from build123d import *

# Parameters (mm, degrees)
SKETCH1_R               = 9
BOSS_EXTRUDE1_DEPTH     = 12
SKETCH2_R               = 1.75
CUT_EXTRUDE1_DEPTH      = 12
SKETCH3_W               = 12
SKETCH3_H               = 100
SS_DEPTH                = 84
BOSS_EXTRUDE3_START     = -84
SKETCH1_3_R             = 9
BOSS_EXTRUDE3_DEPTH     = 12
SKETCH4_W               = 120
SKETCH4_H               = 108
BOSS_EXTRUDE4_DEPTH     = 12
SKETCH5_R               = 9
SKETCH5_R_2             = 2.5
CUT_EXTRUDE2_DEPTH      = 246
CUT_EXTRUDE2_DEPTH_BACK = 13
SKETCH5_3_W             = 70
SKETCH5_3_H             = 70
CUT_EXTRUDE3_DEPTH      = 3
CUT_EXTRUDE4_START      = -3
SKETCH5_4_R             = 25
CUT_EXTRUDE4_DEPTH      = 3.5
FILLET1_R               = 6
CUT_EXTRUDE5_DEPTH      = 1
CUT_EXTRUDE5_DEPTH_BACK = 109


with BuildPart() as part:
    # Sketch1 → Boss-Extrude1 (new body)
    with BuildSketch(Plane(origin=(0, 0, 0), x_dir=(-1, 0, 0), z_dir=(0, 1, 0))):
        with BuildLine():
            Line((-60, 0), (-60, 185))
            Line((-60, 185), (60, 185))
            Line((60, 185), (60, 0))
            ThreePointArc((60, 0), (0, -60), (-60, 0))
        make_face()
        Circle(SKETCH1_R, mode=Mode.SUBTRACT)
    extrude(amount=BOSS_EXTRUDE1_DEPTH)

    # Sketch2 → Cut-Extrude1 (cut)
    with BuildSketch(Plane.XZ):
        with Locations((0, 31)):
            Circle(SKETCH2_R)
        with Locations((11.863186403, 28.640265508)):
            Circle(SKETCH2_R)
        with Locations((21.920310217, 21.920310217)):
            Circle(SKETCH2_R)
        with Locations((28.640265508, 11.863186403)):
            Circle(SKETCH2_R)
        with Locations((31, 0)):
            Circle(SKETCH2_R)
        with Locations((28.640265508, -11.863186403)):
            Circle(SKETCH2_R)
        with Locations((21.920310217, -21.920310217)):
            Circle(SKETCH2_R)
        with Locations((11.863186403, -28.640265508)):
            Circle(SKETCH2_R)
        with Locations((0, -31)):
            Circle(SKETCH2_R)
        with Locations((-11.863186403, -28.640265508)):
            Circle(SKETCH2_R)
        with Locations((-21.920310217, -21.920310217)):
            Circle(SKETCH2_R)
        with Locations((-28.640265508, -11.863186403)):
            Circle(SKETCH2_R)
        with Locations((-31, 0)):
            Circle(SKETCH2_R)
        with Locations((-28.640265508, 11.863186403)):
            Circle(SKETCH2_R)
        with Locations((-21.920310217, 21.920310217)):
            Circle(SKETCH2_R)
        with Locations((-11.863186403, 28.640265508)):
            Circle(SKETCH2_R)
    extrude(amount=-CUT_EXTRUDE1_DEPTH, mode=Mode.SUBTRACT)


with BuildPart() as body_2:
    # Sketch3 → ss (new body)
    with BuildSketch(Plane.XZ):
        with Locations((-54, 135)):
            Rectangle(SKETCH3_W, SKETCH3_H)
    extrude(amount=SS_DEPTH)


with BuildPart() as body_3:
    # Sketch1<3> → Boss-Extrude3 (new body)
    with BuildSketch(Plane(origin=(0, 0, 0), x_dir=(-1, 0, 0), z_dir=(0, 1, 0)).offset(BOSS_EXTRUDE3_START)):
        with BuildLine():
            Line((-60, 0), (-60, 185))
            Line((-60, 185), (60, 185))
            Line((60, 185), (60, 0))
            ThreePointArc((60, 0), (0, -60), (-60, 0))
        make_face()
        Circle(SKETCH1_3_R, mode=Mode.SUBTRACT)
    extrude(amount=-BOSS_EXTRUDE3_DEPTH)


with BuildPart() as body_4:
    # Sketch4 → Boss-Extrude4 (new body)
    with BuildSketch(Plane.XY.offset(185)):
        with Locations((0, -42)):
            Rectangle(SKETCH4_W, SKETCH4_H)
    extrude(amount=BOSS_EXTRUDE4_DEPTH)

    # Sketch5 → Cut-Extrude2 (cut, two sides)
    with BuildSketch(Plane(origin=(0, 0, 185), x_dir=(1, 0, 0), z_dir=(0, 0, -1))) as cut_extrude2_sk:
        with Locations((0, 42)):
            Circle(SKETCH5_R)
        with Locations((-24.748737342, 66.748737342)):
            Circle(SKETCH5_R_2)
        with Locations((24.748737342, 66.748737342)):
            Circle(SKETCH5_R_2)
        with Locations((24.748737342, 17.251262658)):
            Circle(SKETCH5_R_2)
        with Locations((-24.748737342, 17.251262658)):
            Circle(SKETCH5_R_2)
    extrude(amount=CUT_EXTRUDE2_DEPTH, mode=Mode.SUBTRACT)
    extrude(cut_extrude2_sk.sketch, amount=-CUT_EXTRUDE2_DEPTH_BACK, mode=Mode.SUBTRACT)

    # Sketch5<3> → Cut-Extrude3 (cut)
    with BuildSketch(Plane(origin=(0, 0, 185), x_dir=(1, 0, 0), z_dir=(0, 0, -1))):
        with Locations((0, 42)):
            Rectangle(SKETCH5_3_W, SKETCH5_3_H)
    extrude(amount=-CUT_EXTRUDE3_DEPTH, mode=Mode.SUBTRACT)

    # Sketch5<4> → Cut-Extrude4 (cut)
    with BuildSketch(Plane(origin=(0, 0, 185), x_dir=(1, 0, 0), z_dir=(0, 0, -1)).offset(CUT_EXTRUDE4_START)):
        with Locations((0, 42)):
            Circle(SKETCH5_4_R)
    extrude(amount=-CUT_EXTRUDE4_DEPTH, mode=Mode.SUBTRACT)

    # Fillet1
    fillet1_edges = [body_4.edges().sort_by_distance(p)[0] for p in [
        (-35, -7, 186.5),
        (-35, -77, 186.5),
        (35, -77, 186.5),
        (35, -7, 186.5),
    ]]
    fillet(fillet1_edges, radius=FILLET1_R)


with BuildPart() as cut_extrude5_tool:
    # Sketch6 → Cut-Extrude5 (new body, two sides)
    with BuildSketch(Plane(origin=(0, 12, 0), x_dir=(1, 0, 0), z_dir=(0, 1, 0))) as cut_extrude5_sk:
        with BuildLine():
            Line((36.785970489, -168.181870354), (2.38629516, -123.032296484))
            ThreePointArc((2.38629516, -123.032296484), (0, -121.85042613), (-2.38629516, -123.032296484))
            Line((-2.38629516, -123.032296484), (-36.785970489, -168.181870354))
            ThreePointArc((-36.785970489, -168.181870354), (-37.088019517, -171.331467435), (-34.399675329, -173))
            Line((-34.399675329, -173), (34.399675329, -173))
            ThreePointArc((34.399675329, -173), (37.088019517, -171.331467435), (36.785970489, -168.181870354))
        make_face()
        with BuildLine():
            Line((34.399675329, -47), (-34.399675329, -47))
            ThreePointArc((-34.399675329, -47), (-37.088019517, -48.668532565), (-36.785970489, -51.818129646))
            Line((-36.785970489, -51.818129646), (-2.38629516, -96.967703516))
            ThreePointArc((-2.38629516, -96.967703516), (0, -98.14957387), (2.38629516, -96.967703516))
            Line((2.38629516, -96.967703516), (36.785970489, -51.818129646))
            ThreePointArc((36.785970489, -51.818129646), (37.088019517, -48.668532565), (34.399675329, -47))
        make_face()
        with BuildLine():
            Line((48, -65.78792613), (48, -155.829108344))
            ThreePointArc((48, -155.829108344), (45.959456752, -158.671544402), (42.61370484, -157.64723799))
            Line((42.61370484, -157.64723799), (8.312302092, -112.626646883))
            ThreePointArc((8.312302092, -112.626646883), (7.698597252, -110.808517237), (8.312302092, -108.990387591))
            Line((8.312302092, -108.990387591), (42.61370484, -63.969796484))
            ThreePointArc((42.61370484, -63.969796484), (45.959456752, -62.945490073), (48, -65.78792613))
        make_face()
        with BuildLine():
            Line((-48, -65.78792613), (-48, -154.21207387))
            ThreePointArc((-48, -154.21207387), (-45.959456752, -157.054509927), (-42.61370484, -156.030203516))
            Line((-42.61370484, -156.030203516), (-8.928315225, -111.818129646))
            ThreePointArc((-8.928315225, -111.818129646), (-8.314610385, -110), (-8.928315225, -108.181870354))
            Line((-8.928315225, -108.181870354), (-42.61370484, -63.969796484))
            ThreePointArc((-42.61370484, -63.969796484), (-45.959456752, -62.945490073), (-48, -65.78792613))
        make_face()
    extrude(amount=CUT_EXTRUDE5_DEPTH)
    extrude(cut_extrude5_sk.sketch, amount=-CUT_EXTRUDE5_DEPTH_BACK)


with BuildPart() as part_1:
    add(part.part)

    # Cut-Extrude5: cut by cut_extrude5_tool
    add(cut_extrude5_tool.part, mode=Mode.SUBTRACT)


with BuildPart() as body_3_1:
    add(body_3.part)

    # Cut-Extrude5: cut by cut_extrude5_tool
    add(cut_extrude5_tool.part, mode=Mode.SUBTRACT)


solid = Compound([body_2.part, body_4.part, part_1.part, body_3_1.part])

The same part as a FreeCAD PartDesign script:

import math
import FreeCAD as App
import Part
import Sketcher

V = App.Vector
Q = App.Units.Quantity


def edges_at(feature, points):
    """Names of the edges that pass closest to the given points."""
    edges = feature.Shape.Edges
    near = lambda p: min(range(len(edges)), key=lambda i: edges[i].distToShape(Part.Vertex(*p))[0])
    return sorted({f"Edge{near(p) + 1}" for p in points})


def add_polygon(sketch, points):
    """Adds a closed chain of lines whose ends are joined by coincident constraints."""
    first, n = sketch.GeometryCount, len(points)
    for a, b in zip(points, points[1:] + points[:1]):
        sketch.addGeometry(Part.LineSegment(App.Vector(*a, 0), App.Vector(*b, 0)), False)
    for i in range(n):
        sketch.addConstraint(Sketcher.Constraint("Coincident", first + i, 2, first + (i + 1) % n, 1))

doc = App.newDocument("Part")
body = doc.addObject("PartDesign::Body", "Body")

# Sketch on XZ plane
sketch1 = body.newObject("Sketcher::SketchObject", "Sketch")
sketch1.AttachmentSupport = (doc.getObject("XZ_Plane"), [""])
sketch1.MapMode = "FlatFace"
sketch1.addGeometry([
    Part.LineSegment(V(60, 185, 0), V(60, 0, 0)),  # 0
    Part.ArcOfCircle(Part.Circle(V(0, 0, 0), V(0, 0, 1), 60), math.radians(180), math.radians(360)),  # 1
    Part.LineSegment(V(-60, 0, 0), V(-60, 185, 0)),  # 2
    Part.LineSegment(V(-60, 185, 0), V(60, 185, 0)),  # 3
    Part.Circle(V(0, 0, 0), V(0, 0, 1), 9),  # 4
], False)
sketch1.addConstraint([
    Sketcher.Constraint("Tangent", 0, 2, 1, 2),
    Sketcher.Constraint("Tangent", 1, 1, 2, 1),
    Sketcher.Constraint("Coincident", 2, 2, 3, 1),
    Sketcher.Constraint("Coincident", 3, 2, 0, 1),
    Sketcher.Constraint("Vertical", 0),
    Sketcher.Constraint("Vertical", 2),
    Sketcher.Constraint("Horizontal", 3),
    Sketcher.Constraint("Coincident", 1, 3, -1, 1),
    Sketcher.Constraint("Coincident", 4, 3, -1, 1),
    Sketcher.Constraint("Diameter", 4, Q("18 mm")),
    Sketcher.Constraint("Radius", 1, Q("60 mm")),
    Sketcher.Constraint("DistanceY", 0, 2, 0, 1, Q("185 mm")),
])
pad1 = body.newObject("PartDesign::Pad", "Pad")
pad1.Profile = sketch1
pad1.Length = 12
pad1.Reversed = True

# Sketch on XZ plane
sketch2 = body.newObject("Sketcher::SketchObject", "Sketch001")
sketch2.AttachmentSupport = (doc.getObject("XZ_Plane"), [""])
sketch2.MapMode = "FlatFace"
sketch2.addGeometry([
    Part.Circle(V(0, 31, 0), V(0, 0, 1), 1.8),  # 0
    Part.Circle(V(11.9, 28.6, 0), V(0, 0, 1), 1.8),  # 1
    Part.Circle(V(21.9, 21.9, 0), V(0, 0, 1), 1.8),  # 2
    Part.Circle(V(28.6, 11.9, 0), V(0, 0, 1), 1.8),  # 3
    Part.Circle(V(31, 0, 0), V(0, 0, 1), 1.8),  # 4
    Part.Circle(V(28.6, -11.9, 0), V(0, 0, 1), 1.8),  # 5
    Part.Circle(V(21.9, -21.9, 0), V(0, 0, 1), 1.8),  # 6
    Part.Circle(V(11.9, -28.6, 0), V(0, 0, 1), 1.8),  # 7
    Part.Circle(V(0, -31, 0), V(0, 0, 1), 1.8),  # 8
    Part.Circle(V(-11.9, -28.6, 0), V(0, 0, 1), 1.8),  # 9
    Part.Circle(V(-21.9, -21.9, 0), V(0, 0, 1), 1.8),  # 10
    Part.Circle(V(-28.6, -11.9, 0), V(0, 0, 1), 1.8),  # 11
    Part.Circle(V(-31, 0, 0), V(0, 0, 1), 1.8),  # 12
    Part.Circle(V(-28.6, 11.9, 0), V(0, 0, 1), 1.8),  # 13
    Part.Circle(V(-21.9, 21.9, 0), V(0, 0, 1), 1.8),  # 14
    Part.Circle(V(-11.9, 28.6, 0), V(0, 0, 1), 1.8),  # 15
], False)
sketch2.addConstraint([
    Sketcher.Constraint("Equal", 0, 1),
    Sketcher.Constraint("Equal", 1, 2),
    Sketcher.Constraint("Equal", 2, 3),
    Sketcher.Constraint("Equal", 3, 4),
    Sketcher.Constraint("Equal", 4, 5),
    Sketcher.Constraint("Equal", 5, 6),
    Sketcher.Constraint("Equal", 6, 7),
    Sketcher.Constraint("Equal", 7, 8),
    Sketcher.Constraint("Equal", 8, 9),
    Sketcher.Constraint("Equal", 9, 10),
    Sketcher.Constraint("Equal", 10, 11),
    Sketcher.Constraint("Equal", 11, 12),
    Sketcher.Constraint("Equal", 12, 13),
    Sketcher.Constraint("Equal", 13, 14),
    Sketcher.Constraint("Equal", 14, 15),
    Sketcher.Constraint("Symmetric", 0, 3, 8, 3, -1, 1),
    Sketcher.Constraint("Symmetric", 1, 3, 9, 3, -1, 1),
    Sketcher.Constraint("Symmetric", 2, 3, 10, 3, -1, 1),
    Sketcher.Constraint("Symmetric", 3, 3, 11, 3, -1, 1),
    Sketcher.Constraint("Symmetric", 4, 3, 12, 3, -1, 1),
    Sketcher.Constraint("Symmetric", 5, 3, 13, 3, -1, 1),
    Sketcher.Constraint("Symmetric", 6, 3, 14, 3, -1, 1),
    Sketcher.Constraint("Symmetric", 7, 3, 15, 3, -1, 1),
    Sketcher.Constraint("Symmetric", 7, 3, 9, 3, -2),
    Sketcher.Constraint("Symmetric", 6, 3, 10, 3, -2),
    Sketcher.Constraint("Symmetric", 5, 3, 11, 3, -2),
    Sketcher.Constraint("PointOnObject", 0, 3, -2),
    Sketcher.Constraint("PointOnObject", 4, 3, -1),
    Sketcher.Constraint("Diameter", 0, Q("3.5 mm")),
    Sketcher.Constraint("DistanceY", -1, 1, 0, 3, Q("31 mm")),
    Sketcher.Constraint("DistanceX", -1, 1, 4, 3, Q("31 mm")),
    Sketcher.Constraint("DistanceX", -1, 1, 2, 3, Q("21.92031 mm")),
    Sketcher.Constraint("DistanceY", -1, 1, 2, 3, Q("21.92031 mm")),
    Sketcher.Constraint("DistanceX", 1, 3, 3, 3, Q("16.777079 mm")),
    Sketcher.Constraint("DistanceY", 3, 3, 1, 3, Q("16.777079 mm")),
    Sketcher.Constraint("DistanceY", 5, 3, 1, 3, Q("40.503452 mm")),
    Sketcher.Constraint("DistanceX", 9, 3, 5, 3, Q("40.503452 mm")),
])
pocket1 = body.newObject("PartDesign::Pocket", "Pocket")
pocket1.Profile = sketch2
pocket1.Length = 12
body2 = doc.addObject("PartDesign::Body", "Body001")

# Sketch on XZ plane
sketch3 = body2.newObject("Sketcher::SketchObject", "Sketch002")
sketch3.AttachmentSupport = (doc.getObject("XZ_Plane001"), [""])
sketch3.MapMode = "FlatFace"
add_polygon(sketch3, [(-60, 185), (-60, 85), (-48, 85), (-48, 185)])  # lines 0-3
sketch3.addConstraint([
    Sketcher.Constraint("Vertical", 0),
    Sketcher.Constraint("Horizontal", 1),
    Sketcher.Constraint("Vertical", 2),
    Sketcher.Constraint("Horizontal", 3),
    Sketcher.Constraint("DistanceX", 1, 1, 1, 2, Q("12 mm")),
    Sketcher.Constraint("DistanceY", 0, 2, 0, 1, Q("100 mm")),
    Sketcher.Constraint("DistanceX", 0, 2, -1, 1, Q("60 mm")),
    Sketcher.Constraint("DistanceY", -1, 1, 0, 2, Q("85 mm")),
])
pad2 = body2.newObject("PartDesign::Pad", "Pad001")
pad2.Profile = sketch3
pad2.Length = 84
body3 = doc.addObject("PartDesign::Body", "Body002")

# Sketch on XZ plane
sketch4 = body3.newObject("Sketcher::SketchObject", "Sketch003")
sketch4.AttachmentSupport = (doc.getObject("XZ_Plane002"), [""])
sketch4.MapMode = "FlatFace"
sketch4.AttachmentOffset = App.Placement(V(0, 0, 84), App.Rotation())
sketch4.addGeometry([
    Part.LineSegment(V(60, 185, 0), V(60, 0, 0)),  # 0
    Part.ArcOfCircle(Part.Circle(V(0, 0, 0), V(0, 0, 1), 60), math.radians(180), math.radians(360)),  # 1
    Part.LineSegment(V(-60, 0, 0), V(-60, 185, 0)),  # 2
    Part.LineSegment(V(-60, 185, 0), V(60, 185, 0)),  # 3
    Part.Circle(V(0, 0, 0), V(0, 0, 1), 9),  # 4
], False)
sketch4.addConstraint([
    Sketcher.Constraint("Tangent", 0, 2, 1, 2),
    Sketcher.Constraint("Tangent", 1, 1, 2, 1),
    Sketcher.Constraint("Coincident", 2, 2, 3, 1),
    Sketcher.Constraint("Coincident", 3, 2, 0, 1),
    Sketcher.Constraint("Vertical", 0),
    Sketcher.Constraint("Vertical", 2),
    Sketcher.Constraint("Horizontal", 3),
    Sketcher.Constraint("Coincident", 1, 3, -1, 1),
    Sketcher.Constraint("Coincident", 4, 3, -1, 1),
    Sketcher.Constraint("Diameter", 4, Q("18 mm")),
    Sketcher.Constraint("Radius", 1, Q("60 mm")),
    Sketcher.Constraint("DistanceY", 0, 2, 0, 1, Q("185 mm")),
])
pad3 = body3.newObject("PartDesign::Pad", "Pad002")
pad3.Profile = sketch4
pad3.Length = 12
body4 = doc.addObject("PartDesign::Body", "Body003")

# Sketch on XY plane
sketch5 = body4.newObject("Sketcher::SketchObject", "Sketch004")
sketch5.AttachmentSupport = (doc.getObject("XY_Plane003"), [""])
sketch5.MapMode = "FlatFace"
sketch5.AttachmentOffset = App.Placement(V(0, 0, 185), App.Rotation())
add_polygon(sketch5, [(-60, 12), (-60, -96), (60, -96), (60, 12)])  # lines 0-3
sketch5.addConstraint([
    Sketcher.Constraint("Vertical", 0),
    Sketcher.Constraint("Horizontal", 1),
    Sketcher.Constraint("Vertical", 2),
    Sketcher.Constraint("Horizontal", 3),
    Sketcher.Constraint("DistanceX", 1, 1, 1, 2, Q("120 mm")),
    Sketcher.Constraint("DistanceY", 0, 2, 0, 1, Q("108 mm")),
    Sketcher.Constraint("DistanceX", 0, 2, -1, 1, Q("60 mm")),
    Sketcher.Constraint("DistanceY", 0, 2, -1, 1, Q("96 mm")),
])
pad4 = body4.newObject("PartDesign::Pad", "Pad003")
pad4.Profile = sketch5
pad4.Length = 12

# Sketch on XY plane
sketch6 = body4.newObject("Sketcher::SketchObject", "Sketch005")
sketch6.AttachmentSupport = (doc.getObject("XY_Plane003"), [""])
sketch6.MapMode = "FlatFace"
sketch6.AttachmentOffset = App.Placement(V(0, 0, 185), App.Rotation())
sketch6.addGeometry([
    Part.Circle(V(0, -42, 0), V(0, 0, 1), 9),  # 0
    Part.Circle(V(-24.7, -66.7, 0), V(0, 0, 1), 2.5),  # 1
    Part.Circle(V(24.7, -66.7, 0), V(0, 0, 1), 2.5),  # 2
    Part.Circle(V(24.7, -17.3, 0), V(0, 0, 1), 2.5),  # 3
    Part.Circle(V(-24.7, -17.3, 0), V(0, 0, 1), 2.5),  # 4
], False)
sketch6.addConstraint([
    Sketcher.Constraint("Equal", 1, 2),
    Sketcher.Constraint("Equal", 2, 3),
    Sketcher.Constraint("Equal", 3, 4),
    Sketcher.Constraint("Symmetric", 1, 3, 2, 3, -2),
    Sketcher.Constraint("Symmetric", 3, 3, 4, 3, -2),
    Sketcher.Constraint("PointOnObject", 0, 3, -2),
    Sketcher.Constraint("Vertical", 2, 3, 3, 3),
    Sketcher.Constraint("Diameter", 0, Q("18 mm")),
    Sketcher.Constraint("Diameter", 1, Q("5 mm")),
    Sketcher.Constraint("DistanceY", 0, 3, -1, 1, Q("42 mm")),
    Sketcher.Constraint("DistanceX", 1, 3, -1, 1, Q("24.748737 mm")),
    Sketcher.Constraint("DistanceY", 1, 3, -1, 1, Q("66.748737 mm")),
    Sketcher.Constraint("DistanceY", 3, 3, -1, 1, Q("17.251263 mm")),
])
pocket2 = body4.newObject("PartDesign::Pocket", "Pocket001")
pocket2.Profile = sketch6
pocket2.Type = "ThroughAll"
pocket2.Midplane = True

# Sketch on XY plane
sketch7 = body4.newObject("Sketcher::SketchObject", "Sketch006")
sketch7.AttachmentSupport = (doc.getObject("XY_Plane003"), [""])
sketch7.MapMode = "FlatFace"
sketch7.AttachmentOffset = App.Placement(V(0, 0, 185), App.Rotation())
add_polygon(sketch7, [(-35, -77), (-35, -7), (35, -7), (35, -77)])  # lines 0-3
sketch7.addConstraint([
    Sketcher.Constraint("Vertical", 0),
    Sketcher.Constraint("Horizontal", 1),
    Sketcher.Constraint("Vertical", 2),
    Sketcher.Constraint("Horizontal", 3),
    Sketcher.Constraint("Equal", 3, 0),
    Sketcher.Constraint("DistanceX", 1, 1, 1, 2, Q("70 mm")),
    Sketcher.Constraint("DistanceX", 0, 2, -1, 1, Q("35 mm")),
    Sketcher.Constraint("DistanceY", 0, 2, -1, 1, Q("7 mm")),
])
pocket3 = body4.newObject("PartDesign::Pocket", "Pocket002")
pocket3.Profile = sketch7
pocket3.Length = 3
pocket3.Reversed = True

# Sketch on XY plane
sketch8 = body4.newObject("Sketcher::SketchObject", "Sketch007")
sketch8.AttachmentSupport = (doc.getObject("XY_Plane003"), [""])
sketch8.MapMode = "FlatFace"
sketch8.AttachmentOffset = App.Placement(V(0, 0, 188), App.Rotation())
sketch8.addGeometry(Part.Circle(V(0, -42, 0), V(0, 0, 1), 25), False)
sketch8.addConstraint([
    Sketcher.Constraint("PointOnObject", 0, 3, -2),
    Sketcher.Constraint("Diameter", 0, Q("50 mm")),
    Sketcher.Constraint("DistanceY", 0, 3, -1, 1, Q("42 mm")),
])
pocket4 = body4.newObject("PartDesign::Pocket", "Pocket003")
pocket4.Profile = sketch8
pocket4.Length = 3.5
pocket4.Reversed = True
doc.recompute()

fillet = body4.newObject("PartDesign::Fillet", "Fillet")
fillet.Base = (pocket4, edges_at(pocket4, [
    (-35, -7, 186.5),
    (-35, -77, 186.5),
    (35, -77, 186.5),
    (35, -7, 186.5),
]))
fillet.Radius = 6
body5 = doc.addObject("PartDesign::Body", "Body004")
body5.AllowCompound = True

# Sketch on XZ plane
sketch9 = body5.newObject("Sketcher::SketchObject", "Sketch008")
sketch9.AttachmentSupport = (doc.getObject("XZ_Plane004"), [""])
sketch9.MapMode = "FlatFace"
sketch9.AttachmentOffset = App.Placement(V(0, 0, -12), App.Rotation())
sketch9.addGeometry([
    Part.LineSegment(V(36.8, 168.2, 0), V(2.4, 123, 0)),  # 0
    Part.ArcOfCircle(Part.Circle(V(0, 124.9, 0), V(0, 0, 1), 3), math.radians(-143), math.radians(-37)),  # 1
    Part.LineSegment(V(-2.4, 123, 0), V(-36.8, 168.2, 0)),  # 2
    Part.ArcOfCircle(Part.Circle(V(-34.4, 170, 0), V(0, 0, 1), 3), math.radians(90), math.radians(217)),  # 3
    Part.LineSegment(V(-34.4, 173, 0), V(34.4, 173, 0)),  # 4
    Part.ArcOfCircle(Part.Circle(V(34.4, 170, 0), V(0, 0, 1), 3), math.radians(-37), math.radians(90)),  # 5
    Part.LineSegment(V(34.4, 47, 0), V(-34.4, 47, 0)),  # 6
    Part.ArcOfCircle(Part.Circle(V(-34.4, 50, 0), V(0, 0, 1), 3), math.radians(143), math.radians(270)),  # 7
    Part.LineSegment(V(-36.8, 51.8, 0), V(-2.4, 97, 0)),  # 8
    Part.ArcOfCircle(Part.Circle(V(0, 95.1, 0), V(0, 0, 1), 3), math.radians(37), math.radians(143)),  # 9
    Part.LineSegment(V(2.4, 97, 0), V(36.8, 51.8, 0)),  # 10
    Part.ArcOfCircle(Part.Circle(V(34.4, 50, 0), V(0, 0, 1), 3), math.radians(-90), math.radians(37)),  # 11
    Part.LineSegment(V(48, 155.8, 0), V(48, 65.8, 0)),  # 12
    Part.ArcOfCircle(Part.Circle(V(45, 65.8, 0), V(0, 0, 1), 3), math.radians(-143), math.radians(0)),  # 13
    Part.LineSegment(V(42.6, 64, 0), V(8.3, 109, 0)),  # 14
    Part.ArcOfCircle(Part.Circle(V(10.7, 110.8, 0), V(0, 0, 1), 3), math.radians(143), math.radians(217)),  # 15
    Part.LineSegment(V(8.3, 112.6, 0), V(42.6, 157.6, 0)),  # 16
    Part.ArcOfCircle(Part.Circle(V(45, 155.8, 0), V(0, 0, 1), 3), math.radians(0), math.radians(143)),  # 17
    Part.LineSegment(V(-48, 65.8, 0), V(-48, 154.2, 0)),  # 18
    Part.ArcOfCircle(Part.Circle(V(-45, 154.2, 0), V(0, 0, 1), 3), math.radians(37), math.radians(180)),  # 19
    Part.LineSegment(V(-42.6, 156, 0), V(-8.9, 111.8, 0)),  # 20
    Part.ArcOfCircle(Part.Circle(V(-11.3, 110, 0), V(0, 0, 1), 3), math.radians(-37), math.radians(37)),  # 21
    Part.LineSegment(V(-8.9, 108.2, 0), V(-42.6, 64, 0)),  # 22
    Part.ArcOfCircle(Part.Circle(V(-45, 65.8, 0), V(0, 0, 1), 3), math.radians(-180), math.radians(-37)),  # 23
], False)
sketch9.addConstraint([
    Sketcher.Constraint("Tangent", 0, 2, 1, 2),
    Sketcher.Constraint("Tangent", 1, 1, 2, 1),
    Sketcher.Constraint("Tangent", 2, 2, 3, 2),
    Sketcher.Constraint("Tangent", 3, 1, 4, 1),
    Sketcher.Constraint("Tangent", 4, 2, 5, 2),
    Sketcher.Constraint("Tangent", 5, 1, 0, 1),
    Sketcher.Constraint("Tangent", 6, 2, 7, 2),
    Sketcher.Constraint("Tangent", 7, 1, 8, 1),
    Sketcher.Constraint("Tangent", 8, 2, 9, 2),
    Sketcher.Constraint("Tangent", 9, 1, 10, 1),
    Sketcher.Constraint("Tangent", 10, 2, 11, 2),
    Sketcher.Constraint("Tangent", 11, 1, 6, 1),
    Sketcher.Constraint("Tangent", 12, 2, 13, 2),
    Sketcher.Constraint("Tangent", 13, 1, 14, 1),
    Sketcher.Constraint("Tangent", 14, 2, 15, 2),
    Sketcher.Constraint("Tangent", 15, 1, 16, 1),
    Sketcher.Constraint("Tangent", 16, 2, 17, 2),
    Sketcher.Constraint("Tangent", 17, 1, 12, 1),
    Sketcher.Constraint("Tangent", 18, 2, 19, 2),
    Sketcher.Constraint("Tangent", 19, 1, 20, 1),
    Sketcher.Constraint("Tangent", 20, 2, 21, 2),
    Sketcher.Constraint("Tangent", 21, 1, 22, 1),
    Sketcher.Constraint("Tangent", 22, 2, 23, 2),
    Sketcher.Constraint("Tangent", 23, 1, 18, 1),
    Sketcher.Constraint("Horizontal", 4),
    Sketcher.Constraint("Horizontal", 6),
    Sketcher.Constraint("Vertical", 12),
    Sketcher.Constraint("Vertical", 18),
    Sketcher.Constraint("Equal", 1, 3),
    Sketcher.Constraint("Equal", 3, 5),
    Sketcher.Constraint("Equal", 5, 7),
    Sketcher.Constraint("Equal", 7, 9),
    Sketcher.Constraint("Equal", 9, 11),
    Sketcher.Constraint("Equal", 11, 13),
    Sketcher.Constraint("Equal", 13, 15),
    Sketcher.Constraint("Equal", 15, 17),
    Sketcher.Constraint("Equal", 17, 19),
    Sketcher.Constraint("Equal", 19, 21),
    Sketcher.Constraint("Equal", 21, 23),
    Sketcher.Constraint("Symmetric", 13, 3, 23, 3, -2),
    Sketcher.Constraint("Symmetric", 0, 2, 1, 1, -2),
    Sketcher.Constraint("Symmetric", 8, 2, 9, 1, -2),
    Sketcher.Constraint("Parallel", 0, 8),
    Sketcher.Constraint("Parallel", 10, 14),
    Sketcher.Constraint("Parallel", 8, 16),
    Sketcher.Constraint("Parallel", 14, 20),
    Sketcher.Constraint("Parallel", 16, 22),
    Sketcher.Constraint("Vertical", 3, 3, 7, 3),
    Sketcher.Constraint("Radius", 1, Q("3 mm")),
    Sketcher.Constraint("DistanceY", -1, 1, 3, 3, Q("170 mm")),
    Sketcher.Constraint("DistanceY", -1, 1, 7, 3, Q("50 mm")),
    Sketcher.Constraint("DistanceX", -1, 1, 13, 3, Q("45 mm")),
    Sketcher.Constraint("DistanceY", -1, 1, 21, 3, Q("110 mm")),
    Sketcher.Constraint("DistanceX", 4, 1, 4, 2, Q("68.799351 mm")),
    Sketcher.Constraint("DistanceY", 13, 3, 1, 3, Q("59.0625 mm")),
    Sketcher.Constraint("Distance", 14, Q("56.598939 mm")),
    Sketcher.Constraint("DistanceY", 12, 2, 12, 1, Q("90.041182 mm")),
])
pad5 = body5.newObject("PartDesign::Pad", "Pad004")
pad5.Profile = sketch9
pad5.Type = "TwoLengths"
pad5.Length = 1
pad5.Length2 = 109
pad5.Reversed = True
doc.recompute()

body6 = doc.addObject("PartDesign::Body", "Body005")
body6.BaseFeature = body5
boolean = body.newObject("PartDesign::Boolean", "Boolean")
boolean.Type = "Cut"
boolean.addObjects([body6])
doc.recompute()

boolean2 = body3.newObject("PartDesign::Boolean", "Boolean001")
boolean2.Type = "Cut"
boolean2.addObjects([body5])

doc.recompute()
